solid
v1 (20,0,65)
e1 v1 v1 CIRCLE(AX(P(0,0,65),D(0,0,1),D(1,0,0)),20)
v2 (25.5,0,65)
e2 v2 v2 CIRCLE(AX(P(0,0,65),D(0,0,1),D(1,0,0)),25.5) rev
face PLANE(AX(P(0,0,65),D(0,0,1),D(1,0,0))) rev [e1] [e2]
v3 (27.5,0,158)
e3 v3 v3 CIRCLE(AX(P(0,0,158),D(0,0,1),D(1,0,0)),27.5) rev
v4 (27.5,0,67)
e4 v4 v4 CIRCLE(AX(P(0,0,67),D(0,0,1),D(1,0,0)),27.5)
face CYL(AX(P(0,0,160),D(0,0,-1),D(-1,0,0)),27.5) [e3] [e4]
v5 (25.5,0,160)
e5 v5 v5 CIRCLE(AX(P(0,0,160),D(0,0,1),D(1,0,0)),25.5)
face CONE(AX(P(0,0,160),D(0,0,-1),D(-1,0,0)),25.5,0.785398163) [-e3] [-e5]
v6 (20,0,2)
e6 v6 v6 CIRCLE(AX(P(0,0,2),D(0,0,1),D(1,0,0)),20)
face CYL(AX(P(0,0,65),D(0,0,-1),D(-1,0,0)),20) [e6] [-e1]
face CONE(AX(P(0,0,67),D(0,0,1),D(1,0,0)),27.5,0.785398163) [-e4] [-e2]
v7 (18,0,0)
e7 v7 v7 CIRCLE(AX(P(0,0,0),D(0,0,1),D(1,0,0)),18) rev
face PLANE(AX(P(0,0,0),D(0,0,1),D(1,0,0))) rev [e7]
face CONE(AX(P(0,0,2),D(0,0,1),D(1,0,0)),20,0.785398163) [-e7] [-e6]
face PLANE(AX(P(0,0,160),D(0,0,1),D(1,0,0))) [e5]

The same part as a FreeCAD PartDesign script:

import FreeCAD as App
import Part
import Sketcher
from FreeCAD import Vector
Q = App.Units.Quantity


def edges_at(feature, points):
    """Names of the edges that pass closest to the given points."""
    edges = feature.Shape.Edges
    near = lambda p: min(range(len(edges)), key=lambda i: edges[i].distToShape(Part.Vertex(*p))[0])
    return sorted({f"Edge{near(p) + 1}" for p in points})

doc = App.newDocument("Part")
params = doc.addObject("Spreadsheet::Sheet", "Params")
for row, (alias, value) in enumerate([
    ("sketch1_diameter", "40 mm"),
    ("pad1_length", "65 mm"),
    ("sketch2_diameter", "55 mm"),
    ("pad2_length", "95 mm"),
    ("chamfer_size", "2 mm"),
], start=1):
    params.set(f"A{row}", alias)
    params.set(f"B{row}", "=" + value)
    params.setAlias(f"B{row}", alias)

body = doc.addObject("PartDesign::Body", "Body")

sketch1 = body.newObject("Sketcher::SketchObject", "Sketch")
sketch1.AttachmentSupport = (doc.getObject("XY_Plane"), [""])
sketch1.MapMode = "FlatFace"
sketch1.addGeometry(Part.Circle(Vector(0, 0, 0), Vector(0, 0, 1), 20), False)
sketch1.addConstraint([
    Sketcher.Constraint("Coincident", 0, 3, -1, 1),
    Sketcher.Constraint("Diameter", 0, Q("40 mm")),
])
sketch1.setExpression("Constraints[1]", "Params.sketch1_diameter")
pad1 = body.newObject("PartDesign::Pad", "Pad")
pad1.Profile = sketch1
pad1.setExpression("Length", "Params.pad1_length")

sketch2 = body.newObject("Sketcher::SketchObject", "Sketch001")
sketch2.AttachmentSupport = (doc.getObject("XY_Plane"), [""])
sketch2.MapMode = "FlatFace"
sketch2.AttachmentOffset = App.Placement(Vector(0, 0, 65), App.Rotation())
sketch2.addGeometry(Part.Circle(Vector(0, 0, 0), Vector(0, 0, 1), 28), False)
sketch2.addConstraint([
    Sketcher.Constraint("Coincident", 0, 3, -1, 1),
    Sketcher.Constraint("Diameter", 0, Q("55 mm")),
])
sketch2.setExpression("Constraints[1]", "Params.sketch2_diameter")
pad2 = body.newObject("PartDesign::Pad", "Pad001")
pad2.Profile = sketch2
pad2.setExpression("Length", "Params.pad2_length")
doc.recompute()

chamfer = body.newObject("PartDesign::Chamfer", "Chamfer")
chamfer.Base = (pad2, edges_at(pad2, [(-20, 0, 0), (-27.5, 0, 65), (-27.5, 0, 160)]))
chamfer.setExpression("Size", "Params.chamfer_size")

doc.recompute()
